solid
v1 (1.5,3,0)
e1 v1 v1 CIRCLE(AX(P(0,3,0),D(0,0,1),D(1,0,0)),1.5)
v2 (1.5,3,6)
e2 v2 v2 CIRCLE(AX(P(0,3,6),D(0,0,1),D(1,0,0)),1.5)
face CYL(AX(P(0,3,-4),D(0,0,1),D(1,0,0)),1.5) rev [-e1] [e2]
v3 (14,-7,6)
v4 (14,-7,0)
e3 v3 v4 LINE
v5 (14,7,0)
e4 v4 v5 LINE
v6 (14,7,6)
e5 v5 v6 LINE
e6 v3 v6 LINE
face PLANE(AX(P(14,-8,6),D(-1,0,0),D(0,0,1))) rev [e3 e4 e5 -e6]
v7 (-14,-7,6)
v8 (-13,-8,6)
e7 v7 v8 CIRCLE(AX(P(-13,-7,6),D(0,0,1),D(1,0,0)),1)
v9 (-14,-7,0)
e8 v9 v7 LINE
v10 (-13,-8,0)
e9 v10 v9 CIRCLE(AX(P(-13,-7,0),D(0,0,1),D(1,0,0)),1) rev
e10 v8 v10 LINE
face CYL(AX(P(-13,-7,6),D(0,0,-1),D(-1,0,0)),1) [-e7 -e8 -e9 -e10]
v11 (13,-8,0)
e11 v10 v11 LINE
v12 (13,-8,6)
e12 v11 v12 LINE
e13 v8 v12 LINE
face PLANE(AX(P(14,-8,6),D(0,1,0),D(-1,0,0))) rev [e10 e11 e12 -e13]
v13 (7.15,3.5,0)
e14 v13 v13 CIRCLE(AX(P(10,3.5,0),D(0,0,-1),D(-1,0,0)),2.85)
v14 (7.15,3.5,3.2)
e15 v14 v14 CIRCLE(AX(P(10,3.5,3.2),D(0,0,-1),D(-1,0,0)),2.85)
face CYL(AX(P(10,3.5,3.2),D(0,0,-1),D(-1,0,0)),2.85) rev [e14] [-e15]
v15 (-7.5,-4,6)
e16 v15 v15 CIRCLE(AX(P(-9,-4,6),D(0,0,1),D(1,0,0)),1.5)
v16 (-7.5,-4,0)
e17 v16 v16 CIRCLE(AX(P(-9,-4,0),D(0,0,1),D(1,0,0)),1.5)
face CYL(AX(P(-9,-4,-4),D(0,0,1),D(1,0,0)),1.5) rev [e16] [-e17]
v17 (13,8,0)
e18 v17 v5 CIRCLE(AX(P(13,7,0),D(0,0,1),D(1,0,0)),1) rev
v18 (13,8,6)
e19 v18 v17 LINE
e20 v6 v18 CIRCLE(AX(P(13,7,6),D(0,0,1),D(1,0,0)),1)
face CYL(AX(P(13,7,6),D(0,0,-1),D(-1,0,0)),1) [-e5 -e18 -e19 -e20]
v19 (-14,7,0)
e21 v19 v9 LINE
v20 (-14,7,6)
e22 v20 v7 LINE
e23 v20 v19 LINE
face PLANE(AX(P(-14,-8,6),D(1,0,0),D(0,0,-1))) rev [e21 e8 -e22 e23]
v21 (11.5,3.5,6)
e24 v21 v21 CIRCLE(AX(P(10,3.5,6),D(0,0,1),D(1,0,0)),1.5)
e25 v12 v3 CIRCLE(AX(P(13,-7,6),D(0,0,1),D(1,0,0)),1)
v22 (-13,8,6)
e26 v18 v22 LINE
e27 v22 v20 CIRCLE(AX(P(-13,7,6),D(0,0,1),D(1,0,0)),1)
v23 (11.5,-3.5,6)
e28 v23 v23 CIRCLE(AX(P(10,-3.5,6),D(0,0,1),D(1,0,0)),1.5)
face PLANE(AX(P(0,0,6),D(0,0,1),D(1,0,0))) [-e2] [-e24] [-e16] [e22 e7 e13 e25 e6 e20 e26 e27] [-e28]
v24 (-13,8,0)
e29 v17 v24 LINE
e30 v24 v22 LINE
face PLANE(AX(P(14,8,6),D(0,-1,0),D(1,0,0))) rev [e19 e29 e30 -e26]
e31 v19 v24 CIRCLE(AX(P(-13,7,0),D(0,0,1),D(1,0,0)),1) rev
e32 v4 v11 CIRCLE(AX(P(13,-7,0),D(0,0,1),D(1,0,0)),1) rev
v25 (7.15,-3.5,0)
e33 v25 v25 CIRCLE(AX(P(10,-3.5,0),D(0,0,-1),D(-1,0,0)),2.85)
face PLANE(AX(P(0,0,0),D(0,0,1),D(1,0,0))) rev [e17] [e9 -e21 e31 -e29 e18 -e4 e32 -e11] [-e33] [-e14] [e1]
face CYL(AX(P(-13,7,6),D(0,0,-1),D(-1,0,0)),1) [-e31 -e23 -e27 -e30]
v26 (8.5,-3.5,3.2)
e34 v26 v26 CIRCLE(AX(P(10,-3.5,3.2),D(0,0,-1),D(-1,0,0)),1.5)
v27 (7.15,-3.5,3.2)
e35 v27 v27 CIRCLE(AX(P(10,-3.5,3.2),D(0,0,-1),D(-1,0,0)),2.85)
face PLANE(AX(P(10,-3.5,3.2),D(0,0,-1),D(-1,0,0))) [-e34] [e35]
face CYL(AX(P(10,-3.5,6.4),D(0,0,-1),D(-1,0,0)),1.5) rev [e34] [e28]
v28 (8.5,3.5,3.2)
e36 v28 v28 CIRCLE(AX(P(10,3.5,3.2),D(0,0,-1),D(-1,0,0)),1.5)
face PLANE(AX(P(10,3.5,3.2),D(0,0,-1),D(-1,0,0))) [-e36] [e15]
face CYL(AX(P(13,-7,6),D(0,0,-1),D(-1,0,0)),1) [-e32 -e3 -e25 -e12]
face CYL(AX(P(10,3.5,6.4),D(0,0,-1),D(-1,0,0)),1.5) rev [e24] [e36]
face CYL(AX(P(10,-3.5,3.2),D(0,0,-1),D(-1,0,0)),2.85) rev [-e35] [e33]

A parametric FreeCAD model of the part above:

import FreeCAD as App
import Part
import Sketcher

V = App.Vector
Q = App.Units.Quantity


def edges_at(feature, points):
    """Names of the edges that pass closest to the given points."""
    edges = feature.Shape.Edges
    near = lambda p: min(range(len(edges)), key=lambda i: edges[i].distToShape(Part.Vertex(*p))[0])
    return sorted({f"Edge{near(p) + 1}" for p in points})

doc = App.newDocument("Part")
body = doc.addObject("PartDesign::Body", "Body")

# Sketch on XY plane
sketch1 = body.newObject("Sketcher::SketchObject", "Sketch")
sketch1.AttachmentSupport = (doc.getObject("XY_Plane"), [""])
sketch1.MapMode = "FlatFace"
sketch1.addGeometry([
    Part.LineSegment(V(-14, 8, 0), V(-14, -8, 0)),
    Part.LineSegment(V(-14, -8, 0), V(14, -8, 0)),
    Part.LineSegment(V(14, -8, 0), V(14, 8, 0)),
    Part.LineSegment(V(14, 8, 0), V(-14, 8, 0)),
], False)
sketch1.addConstraint([
    Sketcher.Constraint("Coincident", 0, 2, 1, 1),
    Sketcher.Constraint("Coincident", 1, 2, 2, 1),
    Sketcher.Constraint("Coincident", 2, 2, 3, 1),
    Sketcher.Constraint("Coincident", 3, 2, 0, 1),
    Sketcher.Constraint("Vertical", 0),
    Sketcher.Constraint("Horizontal", 1),
    Sketcher.Constraint("Vertical", 2),
    Sketcher.Constraint("Horizontal", 3),
    Sketcher.Constraint("Symmetric", 0, 2, 2, 2, -1, 1),
    Sketcher.Constraint("DistanceX", 1, 1, 1, 2, Q("28 mm")),
    Sketcher.Constraint("DistanceY", 0, 2, 0, 1, Q("16 mm")),
])
pad1 = body.newObject("PartDesign::Pad", "Pad")
pad1.Profile = sketch1
pad1.Length = 6

# Sketch on XY plane
sketch2 = body.newObject("Sketcher::SketchObject", "Sketch001")
sketch2.AttachmentSupport = (doc.getObject("XY_Plane"), [""])
sketch2.MapMode = "FlatFace"
sketch2.addGeometry([
    Part.Circle(V(10, 3.5, 0), V(0, 0, 1), 2.9),
    Part.Circle(V(10, -3.5, 0), V(0, 0, 1), 2.9),
], False)
sketch2.addConstraint([
    Sketcher.Constraint("Equal", 0, 1),
    Sketcher.Constraint("Symmetric", 0, 3, 1, 3, -1),
    Sketcher.Constraint("Diameter", 0, Q("5.7 mm")),
    Sketcher.Constraint("DistanceX", -1, 1, 0, 3, Q("10 mm")),
    Sketcher.Constraint("DistanceY", 1, 3, 0, 3, Q("7 mm")),
])
pocket1 = body.newObject("PartDesign::Pocket", "Pocket")
pocket1.Profile = sketch2
pocket1.Length = 3.2
pocket1.Reversed = True

# Sketch on XY plane
sketch3 = body.newObject("Sketcher::SketchObject", "Sketch002")
sketch3.AttachmentSupport = (doc.getObject("XY_Plane"), [""])
sketch3.MapMode = "FlatFace"
sketch3.AttachmentOffset = App.Placement(V(0, 0, 3.2), App.Rotation())
sketch3.addGeometry([
    Part.Circle(V(10, 3.5, 0), V(0, 0, 1), 1.5),
    Part.Circle(V(10, -3.5, 0), V(0, 0, 1), 1.5),
], False)
sketch3.addConstraint([
    Sketcher.Constraint("Equal", 0, 1),
    Sketcher.Constraint("Symmetric", 0, 3, 1, 3, -1),
    Sketcher.Constraint("Diameter", 0, Q("3 mm")),
    Sketcher.Constraint("DistanceX", -1, 1, 0, 3, Q("10 mm")),
    Sketcher.Constraint("DistanceY", 1, 3, 0, 3, Q("7 mm")),
])
pocket2 = body.newObject("PartDesign::Pocket", "Pocket001")
pocket2.Profile = sketch3
pocket2.Length = 3.2
pocket2.Reversed = True
doc.recompute()

fillet = body.newObject("PartDesign::Fillet", "Fillet")
fillet.Base = (pocket2, edges_at(pocket2, [
    (-14, 8, 3),
    (14, 8, 3),
    (14, -8, 3),
    (-14, -8, 3),
]))
fillet.Radius = 1

# Sketch on XY plane
sketch4 = body.newObject("Sketcher::SketchObject", "Sketch003")
sketch4.AttachmentSupport = (doc.getObject("XY_Plane"), [""])
sketch4.MapMode = "FlatFace"
sketch4.AttachmentOffset = App.Placement(V(0, 0, 6), App.Rotation())
sketch4.addGeometry([
    Part.Circle(V(0, 3, 0), V(0, 0, 1), 1.5),
    Part.Circle(V(-9, -4, 0), V(0, 0, 1), 1.5),
], False)
sketch4.addConstraint([
    Sketcher.Constraint("Equal", 0, 1),
    Sketcher.Constraint("PointOnObject", 0, 3, -2),
    Sketcher.Constraint("Diameter", 0, Q("3 mm")),
    Sketcher.Constraint("DistanceY", -1, 1, 0, 3, Q("3 mm")),
    Sketcher.Constraint("DistanceX", 1, 3, -1, 1, Q("9 mm")),
    Sketcher.Constraint("DistanceY", 1, 3, -1, 1, Q("4 mm")),
])
pocket3 = body.newObject("PartDesign::Pocket", "Pocket002")
pocket3.Profile = sketch4
pocket3.Length = 10

doc.recompute()
